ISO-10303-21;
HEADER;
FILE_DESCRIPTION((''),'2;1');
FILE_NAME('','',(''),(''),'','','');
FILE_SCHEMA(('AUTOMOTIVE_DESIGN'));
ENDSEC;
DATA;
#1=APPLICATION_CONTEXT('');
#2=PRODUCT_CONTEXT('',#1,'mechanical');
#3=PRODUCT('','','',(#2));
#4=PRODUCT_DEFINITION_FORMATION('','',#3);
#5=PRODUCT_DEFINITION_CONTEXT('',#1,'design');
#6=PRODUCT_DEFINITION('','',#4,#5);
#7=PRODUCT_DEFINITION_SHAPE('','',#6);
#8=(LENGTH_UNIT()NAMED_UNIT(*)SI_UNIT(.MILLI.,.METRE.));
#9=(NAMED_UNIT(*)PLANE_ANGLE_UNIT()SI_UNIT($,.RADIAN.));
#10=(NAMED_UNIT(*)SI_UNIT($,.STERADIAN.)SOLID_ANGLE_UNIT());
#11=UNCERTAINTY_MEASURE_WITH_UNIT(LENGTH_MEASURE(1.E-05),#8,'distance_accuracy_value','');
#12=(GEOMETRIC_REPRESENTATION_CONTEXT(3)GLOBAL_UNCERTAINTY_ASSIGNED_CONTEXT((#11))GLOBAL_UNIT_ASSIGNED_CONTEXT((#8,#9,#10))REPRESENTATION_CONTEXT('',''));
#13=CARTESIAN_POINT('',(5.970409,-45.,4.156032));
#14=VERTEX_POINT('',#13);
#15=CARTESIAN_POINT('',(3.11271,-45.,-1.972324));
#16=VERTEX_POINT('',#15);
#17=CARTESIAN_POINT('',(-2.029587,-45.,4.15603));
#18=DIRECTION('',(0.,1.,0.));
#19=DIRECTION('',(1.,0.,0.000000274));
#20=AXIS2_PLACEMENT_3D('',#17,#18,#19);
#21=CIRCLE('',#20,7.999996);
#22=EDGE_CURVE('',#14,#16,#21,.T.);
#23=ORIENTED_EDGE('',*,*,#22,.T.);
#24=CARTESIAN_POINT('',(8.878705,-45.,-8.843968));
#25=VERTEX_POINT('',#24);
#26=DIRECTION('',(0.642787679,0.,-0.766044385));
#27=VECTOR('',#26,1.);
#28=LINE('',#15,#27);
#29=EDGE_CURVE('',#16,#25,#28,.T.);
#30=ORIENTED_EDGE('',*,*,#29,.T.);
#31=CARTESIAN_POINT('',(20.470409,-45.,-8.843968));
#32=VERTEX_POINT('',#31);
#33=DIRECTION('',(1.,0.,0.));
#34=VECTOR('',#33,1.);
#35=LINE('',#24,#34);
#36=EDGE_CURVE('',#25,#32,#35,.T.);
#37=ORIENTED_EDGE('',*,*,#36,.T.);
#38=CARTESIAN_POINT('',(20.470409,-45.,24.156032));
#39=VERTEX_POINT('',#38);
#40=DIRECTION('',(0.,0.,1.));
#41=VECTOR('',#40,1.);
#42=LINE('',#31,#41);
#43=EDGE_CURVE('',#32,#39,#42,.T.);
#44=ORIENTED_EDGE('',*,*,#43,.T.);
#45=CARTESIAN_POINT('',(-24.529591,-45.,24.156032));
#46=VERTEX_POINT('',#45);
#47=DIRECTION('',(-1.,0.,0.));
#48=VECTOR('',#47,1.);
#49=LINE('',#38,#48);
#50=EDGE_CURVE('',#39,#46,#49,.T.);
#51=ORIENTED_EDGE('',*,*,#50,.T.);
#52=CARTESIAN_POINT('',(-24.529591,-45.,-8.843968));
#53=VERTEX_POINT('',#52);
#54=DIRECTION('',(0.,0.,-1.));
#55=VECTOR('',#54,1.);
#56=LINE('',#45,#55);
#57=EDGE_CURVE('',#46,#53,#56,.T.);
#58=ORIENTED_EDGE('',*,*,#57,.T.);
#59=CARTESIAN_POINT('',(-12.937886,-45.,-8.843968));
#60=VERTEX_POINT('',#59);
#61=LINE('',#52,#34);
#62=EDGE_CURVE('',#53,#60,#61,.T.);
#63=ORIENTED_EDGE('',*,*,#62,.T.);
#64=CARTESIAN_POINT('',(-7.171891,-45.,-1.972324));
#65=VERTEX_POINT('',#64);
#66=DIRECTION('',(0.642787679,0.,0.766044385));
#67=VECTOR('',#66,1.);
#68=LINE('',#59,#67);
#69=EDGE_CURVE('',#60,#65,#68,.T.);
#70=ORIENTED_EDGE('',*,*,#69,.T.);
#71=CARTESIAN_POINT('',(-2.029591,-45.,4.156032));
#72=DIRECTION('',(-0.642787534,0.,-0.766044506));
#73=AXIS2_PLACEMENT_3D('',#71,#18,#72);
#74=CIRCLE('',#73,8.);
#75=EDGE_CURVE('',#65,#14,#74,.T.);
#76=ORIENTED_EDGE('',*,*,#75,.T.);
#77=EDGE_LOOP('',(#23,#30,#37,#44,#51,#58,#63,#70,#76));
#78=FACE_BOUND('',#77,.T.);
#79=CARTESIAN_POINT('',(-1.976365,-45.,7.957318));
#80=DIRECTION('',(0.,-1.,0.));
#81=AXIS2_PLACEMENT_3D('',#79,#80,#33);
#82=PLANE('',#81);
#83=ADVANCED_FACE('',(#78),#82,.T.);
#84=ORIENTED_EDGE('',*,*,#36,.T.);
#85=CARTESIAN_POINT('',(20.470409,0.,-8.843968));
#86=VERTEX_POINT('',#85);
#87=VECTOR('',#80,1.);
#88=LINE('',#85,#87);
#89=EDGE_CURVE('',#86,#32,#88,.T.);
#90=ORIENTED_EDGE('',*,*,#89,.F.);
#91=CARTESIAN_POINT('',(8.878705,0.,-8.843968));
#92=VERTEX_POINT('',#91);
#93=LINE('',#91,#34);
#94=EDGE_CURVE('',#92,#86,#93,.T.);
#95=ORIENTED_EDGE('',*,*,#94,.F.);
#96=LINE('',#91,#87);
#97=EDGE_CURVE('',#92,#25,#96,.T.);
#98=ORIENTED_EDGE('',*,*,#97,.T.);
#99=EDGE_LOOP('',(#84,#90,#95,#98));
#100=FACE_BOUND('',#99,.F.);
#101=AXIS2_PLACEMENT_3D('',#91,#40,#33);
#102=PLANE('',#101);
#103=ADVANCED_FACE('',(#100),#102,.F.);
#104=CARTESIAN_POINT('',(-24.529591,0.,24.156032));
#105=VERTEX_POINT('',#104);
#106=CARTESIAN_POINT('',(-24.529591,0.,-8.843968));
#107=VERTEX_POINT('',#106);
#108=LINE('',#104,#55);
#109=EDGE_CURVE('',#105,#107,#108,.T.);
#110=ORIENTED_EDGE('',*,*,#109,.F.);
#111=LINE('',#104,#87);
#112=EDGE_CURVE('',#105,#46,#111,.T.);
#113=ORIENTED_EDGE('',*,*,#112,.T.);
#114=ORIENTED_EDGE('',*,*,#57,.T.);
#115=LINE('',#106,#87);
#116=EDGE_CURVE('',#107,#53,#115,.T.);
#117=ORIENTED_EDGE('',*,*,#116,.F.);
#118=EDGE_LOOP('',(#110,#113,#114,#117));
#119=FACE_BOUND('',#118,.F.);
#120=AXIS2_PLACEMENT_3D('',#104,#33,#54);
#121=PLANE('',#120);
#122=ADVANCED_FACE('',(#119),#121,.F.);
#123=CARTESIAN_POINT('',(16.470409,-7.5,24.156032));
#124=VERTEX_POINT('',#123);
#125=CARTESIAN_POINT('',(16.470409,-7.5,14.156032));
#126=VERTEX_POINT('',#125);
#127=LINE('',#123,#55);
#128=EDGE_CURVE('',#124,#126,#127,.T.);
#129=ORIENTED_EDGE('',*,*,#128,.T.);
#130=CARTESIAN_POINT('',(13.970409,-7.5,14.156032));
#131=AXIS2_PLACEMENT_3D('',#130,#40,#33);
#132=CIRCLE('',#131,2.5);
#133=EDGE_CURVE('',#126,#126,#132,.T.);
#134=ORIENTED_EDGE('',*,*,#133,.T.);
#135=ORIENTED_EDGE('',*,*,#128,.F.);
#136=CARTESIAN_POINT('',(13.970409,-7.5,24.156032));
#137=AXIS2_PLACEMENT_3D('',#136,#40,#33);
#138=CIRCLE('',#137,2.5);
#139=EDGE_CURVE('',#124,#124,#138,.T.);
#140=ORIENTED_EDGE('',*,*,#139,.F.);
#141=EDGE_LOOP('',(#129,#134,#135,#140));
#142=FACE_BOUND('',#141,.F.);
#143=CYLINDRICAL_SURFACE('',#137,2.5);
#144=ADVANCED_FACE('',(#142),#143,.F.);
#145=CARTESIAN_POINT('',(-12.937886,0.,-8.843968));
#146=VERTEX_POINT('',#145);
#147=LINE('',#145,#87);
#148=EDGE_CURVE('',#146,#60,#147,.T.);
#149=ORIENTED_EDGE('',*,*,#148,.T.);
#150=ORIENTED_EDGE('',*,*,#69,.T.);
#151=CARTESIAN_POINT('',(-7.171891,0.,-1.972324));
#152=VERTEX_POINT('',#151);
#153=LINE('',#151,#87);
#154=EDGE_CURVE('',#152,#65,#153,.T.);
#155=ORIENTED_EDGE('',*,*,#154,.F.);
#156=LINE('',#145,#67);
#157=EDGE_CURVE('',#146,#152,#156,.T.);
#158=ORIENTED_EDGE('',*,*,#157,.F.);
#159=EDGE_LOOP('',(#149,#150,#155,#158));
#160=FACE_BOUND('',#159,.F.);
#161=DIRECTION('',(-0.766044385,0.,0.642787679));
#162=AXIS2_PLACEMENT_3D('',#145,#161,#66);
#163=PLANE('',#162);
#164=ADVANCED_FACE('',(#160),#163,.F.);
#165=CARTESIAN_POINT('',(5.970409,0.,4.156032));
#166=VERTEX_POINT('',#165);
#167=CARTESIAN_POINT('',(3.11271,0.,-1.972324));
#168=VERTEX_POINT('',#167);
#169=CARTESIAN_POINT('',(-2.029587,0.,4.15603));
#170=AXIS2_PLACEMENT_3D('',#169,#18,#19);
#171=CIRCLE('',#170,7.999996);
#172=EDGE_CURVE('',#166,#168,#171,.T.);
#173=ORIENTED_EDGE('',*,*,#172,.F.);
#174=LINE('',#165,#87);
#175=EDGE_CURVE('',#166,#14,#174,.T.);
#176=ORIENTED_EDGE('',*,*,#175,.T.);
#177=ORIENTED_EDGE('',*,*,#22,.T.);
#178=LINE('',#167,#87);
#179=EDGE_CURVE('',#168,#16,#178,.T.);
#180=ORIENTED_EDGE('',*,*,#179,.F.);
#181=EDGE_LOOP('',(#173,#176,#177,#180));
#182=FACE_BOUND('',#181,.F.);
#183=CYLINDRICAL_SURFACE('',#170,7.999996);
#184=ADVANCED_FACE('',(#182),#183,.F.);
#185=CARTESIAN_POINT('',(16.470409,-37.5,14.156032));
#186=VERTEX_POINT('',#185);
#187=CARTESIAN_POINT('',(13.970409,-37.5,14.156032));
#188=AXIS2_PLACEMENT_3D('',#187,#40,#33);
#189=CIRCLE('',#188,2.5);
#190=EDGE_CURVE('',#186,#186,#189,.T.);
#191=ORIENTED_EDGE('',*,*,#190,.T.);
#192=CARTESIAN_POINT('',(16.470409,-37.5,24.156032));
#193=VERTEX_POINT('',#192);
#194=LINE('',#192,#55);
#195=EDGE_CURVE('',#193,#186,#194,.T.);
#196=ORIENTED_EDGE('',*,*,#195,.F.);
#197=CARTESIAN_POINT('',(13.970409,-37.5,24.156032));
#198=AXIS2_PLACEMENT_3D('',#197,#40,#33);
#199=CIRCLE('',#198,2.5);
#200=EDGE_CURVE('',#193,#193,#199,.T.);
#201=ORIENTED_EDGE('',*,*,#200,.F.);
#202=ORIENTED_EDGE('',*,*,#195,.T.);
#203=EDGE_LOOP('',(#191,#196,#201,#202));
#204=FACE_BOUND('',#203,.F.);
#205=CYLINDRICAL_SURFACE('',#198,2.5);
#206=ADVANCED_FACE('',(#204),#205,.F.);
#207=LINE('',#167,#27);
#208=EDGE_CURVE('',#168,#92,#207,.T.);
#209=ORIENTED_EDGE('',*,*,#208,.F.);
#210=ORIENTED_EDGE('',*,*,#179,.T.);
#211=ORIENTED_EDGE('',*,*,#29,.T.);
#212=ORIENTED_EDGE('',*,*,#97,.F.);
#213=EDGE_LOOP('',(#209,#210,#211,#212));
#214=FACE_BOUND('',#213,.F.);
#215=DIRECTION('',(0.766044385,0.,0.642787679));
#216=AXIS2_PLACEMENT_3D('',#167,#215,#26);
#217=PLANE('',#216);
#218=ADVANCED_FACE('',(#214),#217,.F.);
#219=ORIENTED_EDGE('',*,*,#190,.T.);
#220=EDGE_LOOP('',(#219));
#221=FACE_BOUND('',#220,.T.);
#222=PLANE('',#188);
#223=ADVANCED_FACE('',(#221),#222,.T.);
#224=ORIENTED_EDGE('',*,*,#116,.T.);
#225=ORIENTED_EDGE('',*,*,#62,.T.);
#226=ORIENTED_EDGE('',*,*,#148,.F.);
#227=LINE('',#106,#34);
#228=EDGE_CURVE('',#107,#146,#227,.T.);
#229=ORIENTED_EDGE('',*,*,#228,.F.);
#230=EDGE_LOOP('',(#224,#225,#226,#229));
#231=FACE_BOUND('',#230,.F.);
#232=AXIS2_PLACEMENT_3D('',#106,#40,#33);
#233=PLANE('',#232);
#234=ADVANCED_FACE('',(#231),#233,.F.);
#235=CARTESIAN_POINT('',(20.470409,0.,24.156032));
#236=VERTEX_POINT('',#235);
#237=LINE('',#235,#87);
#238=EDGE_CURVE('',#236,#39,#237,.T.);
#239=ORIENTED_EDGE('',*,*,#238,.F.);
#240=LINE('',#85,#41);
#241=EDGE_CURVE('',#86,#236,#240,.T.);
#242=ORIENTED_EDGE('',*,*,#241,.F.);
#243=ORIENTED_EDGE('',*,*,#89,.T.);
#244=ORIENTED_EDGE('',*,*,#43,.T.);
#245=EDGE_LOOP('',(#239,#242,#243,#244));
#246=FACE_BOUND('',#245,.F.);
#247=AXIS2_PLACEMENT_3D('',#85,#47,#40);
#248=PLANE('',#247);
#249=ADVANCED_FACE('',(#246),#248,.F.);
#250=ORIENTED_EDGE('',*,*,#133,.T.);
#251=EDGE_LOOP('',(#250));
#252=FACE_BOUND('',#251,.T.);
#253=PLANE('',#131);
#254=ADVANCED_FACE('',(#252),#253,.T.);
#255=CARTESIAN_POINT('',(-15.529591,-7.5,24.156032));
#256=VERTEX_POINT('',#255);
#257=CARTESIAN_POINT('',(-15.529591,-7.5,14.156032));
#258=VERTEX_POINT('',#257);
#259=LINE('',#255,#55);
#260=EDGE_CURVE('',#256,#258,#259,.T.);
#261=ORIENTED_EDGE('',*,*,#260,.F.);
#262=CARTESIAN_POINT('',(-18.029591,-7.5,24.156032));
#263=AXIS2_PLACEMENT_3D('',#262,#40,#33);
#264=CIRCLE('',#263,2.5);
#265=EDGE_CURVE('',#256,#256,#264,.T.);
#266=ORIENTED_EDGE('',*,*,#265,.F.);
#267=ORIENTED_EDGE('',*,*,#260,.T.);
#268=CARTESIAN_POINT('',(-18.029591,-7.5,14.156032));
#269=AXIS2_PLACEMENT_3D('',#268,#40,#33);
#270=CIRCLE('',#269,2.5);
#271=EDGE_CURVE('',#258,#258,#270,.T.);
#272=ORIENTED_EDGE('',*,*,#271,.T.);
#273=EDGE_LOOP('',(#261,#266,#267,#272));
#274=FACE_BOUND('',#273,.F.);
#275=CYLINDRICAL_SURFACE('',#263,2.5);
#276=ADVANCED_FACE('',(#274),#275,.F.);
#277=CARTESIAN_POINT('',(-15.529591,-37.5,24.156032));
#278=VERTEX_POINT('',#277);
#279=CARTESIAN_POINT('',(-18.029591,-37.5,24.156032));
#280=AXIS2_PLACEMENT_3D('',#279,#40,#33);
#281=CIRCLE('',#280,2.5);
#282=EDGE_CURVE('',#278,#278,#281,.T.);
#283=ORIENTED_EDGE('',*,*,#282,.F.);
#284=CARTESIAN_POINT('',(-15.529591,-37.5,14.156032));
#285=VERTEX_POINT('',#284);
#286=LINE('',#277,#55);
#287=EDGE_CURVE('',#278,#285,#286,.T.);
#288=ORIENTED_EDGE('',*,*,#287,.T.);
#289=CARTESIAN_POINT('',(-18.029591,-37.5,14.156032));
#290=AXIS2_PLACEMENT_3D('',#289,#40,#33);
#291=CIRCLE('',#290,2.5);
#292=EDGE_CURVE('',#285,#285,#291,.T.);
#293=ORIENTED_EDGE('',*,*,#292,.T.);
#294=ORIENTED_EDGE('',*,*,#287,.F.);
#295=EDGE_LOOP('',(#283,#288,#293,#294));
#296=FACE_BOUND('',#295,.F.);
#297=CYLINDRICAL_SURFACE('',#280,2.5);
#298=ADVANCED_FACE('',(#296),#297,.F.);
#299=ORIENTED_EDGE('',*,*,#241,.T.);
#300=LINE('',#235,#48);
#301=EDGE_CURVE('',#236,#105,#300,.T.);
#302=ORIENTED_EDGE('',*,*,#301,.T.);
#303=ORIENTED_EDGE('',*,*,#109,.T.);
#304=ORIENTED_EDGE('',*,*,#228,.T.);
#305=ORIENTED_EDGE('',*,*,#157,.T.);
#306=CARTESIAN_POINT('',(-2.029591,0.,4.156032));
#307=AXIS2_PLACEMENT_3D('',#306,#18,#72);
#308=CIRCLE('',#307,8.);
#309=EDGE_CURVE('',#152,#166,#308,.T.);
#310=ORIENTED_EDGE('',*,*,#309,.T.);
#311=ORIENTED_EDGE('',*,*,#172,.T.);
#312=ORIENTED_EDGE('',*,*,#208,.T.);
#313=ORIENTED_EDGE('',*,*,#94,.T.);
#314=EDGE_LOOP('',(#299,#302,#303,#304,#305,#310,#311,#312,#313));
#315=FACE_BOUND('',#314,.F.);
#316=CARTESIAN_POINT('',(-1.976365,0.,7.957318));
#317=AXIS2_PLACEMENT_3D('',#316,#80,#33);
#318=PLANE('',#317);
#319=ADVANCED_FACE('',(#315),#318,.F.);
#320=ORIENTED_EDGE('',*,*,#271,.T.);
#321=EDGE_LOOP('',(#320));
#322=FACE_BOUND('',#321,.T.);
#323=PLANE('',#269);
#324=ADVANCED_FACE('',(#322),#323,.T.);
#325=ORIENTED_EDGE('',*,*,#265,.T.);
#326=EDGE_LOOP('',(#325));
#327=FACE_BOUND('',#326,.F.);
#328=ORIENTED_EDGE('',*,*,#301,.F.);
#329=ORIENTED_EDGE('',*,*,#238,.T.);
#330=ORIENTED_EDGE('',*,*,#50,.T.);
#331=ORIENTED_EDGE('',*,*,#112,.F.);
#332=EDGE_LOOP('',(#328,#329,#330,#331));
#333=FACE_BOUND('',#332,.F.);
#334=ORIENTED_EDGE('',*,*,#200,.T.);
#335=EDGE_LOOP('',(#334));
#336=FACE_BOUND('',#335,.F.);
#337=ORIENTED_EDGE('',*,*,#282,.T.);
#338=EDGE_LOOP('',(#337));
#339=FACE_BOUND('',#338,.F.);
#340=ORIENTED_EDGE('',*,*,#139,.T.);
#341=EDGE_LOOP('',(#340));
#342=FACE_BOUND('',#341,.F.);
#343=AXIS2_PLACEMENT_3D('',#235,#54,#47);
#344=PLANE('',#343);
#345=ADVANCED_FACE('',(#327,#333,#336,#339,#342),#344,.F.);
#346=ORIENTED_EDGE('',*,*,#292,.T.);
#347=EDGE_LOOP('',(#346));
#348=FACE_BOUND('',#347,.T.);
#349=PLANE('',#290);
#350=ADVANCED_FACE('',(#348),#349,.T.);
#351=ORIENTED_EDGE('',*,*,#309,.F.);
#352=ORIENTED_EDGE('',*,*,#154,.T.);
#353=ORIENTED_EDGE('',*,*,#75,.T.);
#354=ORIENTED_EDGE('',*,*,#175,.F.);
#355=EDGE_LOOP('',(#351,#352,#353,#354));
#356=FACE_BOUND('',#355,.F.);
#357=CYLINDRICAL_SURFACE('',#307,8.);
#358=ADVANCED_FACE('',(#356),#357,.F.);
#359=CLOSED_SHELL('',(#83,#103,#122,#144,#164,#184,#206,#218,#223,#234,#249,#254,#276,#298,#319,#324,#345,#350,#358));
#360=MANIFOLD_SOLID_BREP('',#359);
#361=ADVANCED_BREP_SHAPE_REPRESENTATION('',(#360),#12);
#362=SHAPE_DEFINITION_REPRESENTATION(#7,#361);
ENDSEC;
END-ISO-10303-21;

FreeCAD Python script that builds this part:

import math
import FreeCAD as App
import Part
import Sketcher
from FreeCAD import Vector
Q = App.Units.Quantity

doc = App.newDocument("Part")
body = doc.addObject("PartDesign::Body", "Body")

# Sketch on XZ plane
sketch1 = body.newObject("Sketcher::SketchObject", "Sketch")
sketch1.AttachmentSupport = (doc.getObject("XZ_Plane"), [""])
sketch1.MapMode = "FlatFace"
sketch1.addGeometry(Part.LineSegment(Vector(20, 24, 0), Vector(-25, 24, 0)), False)
sketch1.addGeometry(Part.LineSegment(Vector(-25, 24, 0), Vector(-25, -9, 0)), False)
sketch1.addGeometry(Part.LineSegment(Vector(-25, -9, 0), Vector(-13, -9, 0)), False)
sketch1.addGeometry(Part.LineSegment(Vector(-13, -9, 0), Vector(-7, -2, 0)), False)
sketch1.addGeometry(Part.ArcOfCircle(Part.Circle(Vector(-2, 4, 0), Vector(0, 0, 1), 8), math.radians(0), math.radians(230)), False)
sketch1.addGeometry(Part.ArcOfCircle(Part.Circle(Vector(-2, 4, 0), Vector(0, 0, 1), 8), math.radians(-50), math.radians(0)), False)
sketch1.addGeometry(Part.LineSegment(Vector(3, -2, 0), Vector(9, -9, 0)), False)
sketch1.addGeometry(Part.LineSegment(Vector(9, -9, 0), Vector(20, -9, 0)), False)
sketch1.addGeometry(Part.LineSegment(Vector(20, -9, 0), Vector(20, 24, 0)), False)
sketch1.addConstraint(Sketcher.Constraint("Coincident", 0, 2, 1, 1))
sketch1.addConstraint(Sketcher.Constraint("Coincident", 1, 2, 2, 1))
sketch1.addConstraint(Sketcher.Constraint("Coincident", 2, 2, 3, 1))
sketch1.addConstraint(Sketcher.Constraint("Coincident", 3, 2, 4, 2))
sketch1.addConstraint(Sketcher.Constraint("Tangent", 4, 1, 5, 2))
sketch1.addConstraint(Sketcher.Constraint("Coincident", 5, 1, 6, 1))
sketch1.addConstraint(Sketcher.Constraint("Coincident", 6, 2, 7, 1))
sketch1.addConstraint(Sketcher.Constraint("Coincident", 7, 2, 8, 1))
sketch1.addConstraint(Sketcher.Constraint("Coincident", 8, 2, 0, 1))
sketch1.addConstraint(Sketcher.Constraint("Horizontal", 0))
sketch1.addConstraint(Sketcher.Constraint("Vertical", 1))
sketch1.addConstraint(Sketcher.Constraint("Horizontal", 2))
sketch1.addConstraint(Sketcher.Constraint("Horizontal", 7))
sketch1.addConstraint(Sketcher.Constraint("Vertical", 8))
sketch1.addConstraint(Sketcher.Constraint("Horizontal", 3, 2, 5, 1))
sketch1.addConstraint(Sketcher.Constraint("Horizontal", 2, 2, 6, 2))
sketch1.addConstraint(Sketcher.Constraint("Equal", 2, 7))
sketch1.addConstraint(Sketcher.Constraint("Equal", 3, 6))
sketch1.addConstraint(Sketcher.Constraint("Radius", 4, 8.0))
sketch1.addConstraint(Sketcher.Constraint("DistanceX", 0, 2, 0, 1, 45.0))
sketch1.addConstraint(Sketcher.Constraint("DistanceY", 1, 2, 1, 1, 33.0))
sketch1.addConstraint(Sketcher.Constraint("Angle", 3, Q("49.999995 deg")))
sketch1.addConstraint(Sketcher.Constraint("DistanceY", 4, 3, 0, 2, 20.0))
sketch1.addConstraint(Sketcher.Constraint("DistanceY", 2, 2, 4, 1, 13.0))
sketch1.addConstraint(Sketcher.Constraint("DistanceX", 0, 2, 4, 3, 22.5))
sketch1.addConstraint(Sketcher.Constraint("DistanceX", 2, 2, 5, 3, 10.908299))
sketch1.addConstraint(Sketcher.Constraint("DistanceX", 4, 3, -1, 1, 2.029591))
sketch1.addConstraint(Sketcher.Constraint("DistanceY", -1, 1, 4, 3, 4.156032))
pad1 = body.newObject("PartDesign::Pad", "Pad")
pad1.Profile = sketch1
pad1.Length = 45

# Sketch on XY plane
sketch2 = body.newObject("Sketcher::SketchObject", "Sketch001")
sketch2.AttachmentSupport = (doc.getObject("XY_Plane"), [""])
sketch2.MapMode = "FlatFace"
sketch2.AttachmentOffset = App.Placement(Vector(0, 0, 24.156032), App.Rotation())
sketch2.addGeometry(Part.Circle(Vector(14, -7.5, 0), Vector(0, 0, 1), 2.5), False)
sketch2.addGeometry(Part.Circle(Vector(-18, -37.5, 0), Vector(0, 0, 1), 2.5), False)
sketch2.addGeometry(Part.Circle(Vector(14, -37.5, 0), Vector(0, 0, 1), 2.5), False)
sketch2.addGeometry(Part.Circle(Vector(-18, -7.5, 0), Vector(0, 0, 1), 2.5), False)
sketch2.addConstraint(Sketcher.Constraint("Equal", 0, 1))
sketch2.addConstraint(Sketcher.Constraint("Equal", 1, 2))
sketch2.addConstraint(Sketcher.Constraint("Equal", 2, 3))
sketch2.addConstraint(Sketcher.Constraint("Horizontal", 1, 3, 2, 3))
sketch2.addConstraint(Sketcher.Constraint("Horizontal", 0, 3, 3, 3))
sketch2.addConstraint(Sketcher.Constraint("Vertical", 0, 3, 2, 3))
sketch2.addConstraint(Sketcher.Constraint("Vertical", 1, 3, 3, 3))
sketch2.addConstraint(Sketcher.Constraint("Diameter", 0, 5.0))
sketch2.addConstraint(Sketcher.Constraint("DistanceX", 1, 3, 0, 3, 32.0))
sketch2.addConstraint(Sketcher.Constraint("DistanceY", 1, 3, 0, 3, 30.0))
sketch2.addConstraint(Sketcher.Constraint("DistanceY", 0, 3, -1, 1, 7.5))
sketch2.addConstraint(Sketcher.Constraint("DistanceX", -1, 1, 0, 3, 13.970409))
pocket1 = body.newObject("PartDesign::Pocket", "Pocket")
pocket1.Profile = sketch2
pocket1.Length = 10

doc.recompute()
